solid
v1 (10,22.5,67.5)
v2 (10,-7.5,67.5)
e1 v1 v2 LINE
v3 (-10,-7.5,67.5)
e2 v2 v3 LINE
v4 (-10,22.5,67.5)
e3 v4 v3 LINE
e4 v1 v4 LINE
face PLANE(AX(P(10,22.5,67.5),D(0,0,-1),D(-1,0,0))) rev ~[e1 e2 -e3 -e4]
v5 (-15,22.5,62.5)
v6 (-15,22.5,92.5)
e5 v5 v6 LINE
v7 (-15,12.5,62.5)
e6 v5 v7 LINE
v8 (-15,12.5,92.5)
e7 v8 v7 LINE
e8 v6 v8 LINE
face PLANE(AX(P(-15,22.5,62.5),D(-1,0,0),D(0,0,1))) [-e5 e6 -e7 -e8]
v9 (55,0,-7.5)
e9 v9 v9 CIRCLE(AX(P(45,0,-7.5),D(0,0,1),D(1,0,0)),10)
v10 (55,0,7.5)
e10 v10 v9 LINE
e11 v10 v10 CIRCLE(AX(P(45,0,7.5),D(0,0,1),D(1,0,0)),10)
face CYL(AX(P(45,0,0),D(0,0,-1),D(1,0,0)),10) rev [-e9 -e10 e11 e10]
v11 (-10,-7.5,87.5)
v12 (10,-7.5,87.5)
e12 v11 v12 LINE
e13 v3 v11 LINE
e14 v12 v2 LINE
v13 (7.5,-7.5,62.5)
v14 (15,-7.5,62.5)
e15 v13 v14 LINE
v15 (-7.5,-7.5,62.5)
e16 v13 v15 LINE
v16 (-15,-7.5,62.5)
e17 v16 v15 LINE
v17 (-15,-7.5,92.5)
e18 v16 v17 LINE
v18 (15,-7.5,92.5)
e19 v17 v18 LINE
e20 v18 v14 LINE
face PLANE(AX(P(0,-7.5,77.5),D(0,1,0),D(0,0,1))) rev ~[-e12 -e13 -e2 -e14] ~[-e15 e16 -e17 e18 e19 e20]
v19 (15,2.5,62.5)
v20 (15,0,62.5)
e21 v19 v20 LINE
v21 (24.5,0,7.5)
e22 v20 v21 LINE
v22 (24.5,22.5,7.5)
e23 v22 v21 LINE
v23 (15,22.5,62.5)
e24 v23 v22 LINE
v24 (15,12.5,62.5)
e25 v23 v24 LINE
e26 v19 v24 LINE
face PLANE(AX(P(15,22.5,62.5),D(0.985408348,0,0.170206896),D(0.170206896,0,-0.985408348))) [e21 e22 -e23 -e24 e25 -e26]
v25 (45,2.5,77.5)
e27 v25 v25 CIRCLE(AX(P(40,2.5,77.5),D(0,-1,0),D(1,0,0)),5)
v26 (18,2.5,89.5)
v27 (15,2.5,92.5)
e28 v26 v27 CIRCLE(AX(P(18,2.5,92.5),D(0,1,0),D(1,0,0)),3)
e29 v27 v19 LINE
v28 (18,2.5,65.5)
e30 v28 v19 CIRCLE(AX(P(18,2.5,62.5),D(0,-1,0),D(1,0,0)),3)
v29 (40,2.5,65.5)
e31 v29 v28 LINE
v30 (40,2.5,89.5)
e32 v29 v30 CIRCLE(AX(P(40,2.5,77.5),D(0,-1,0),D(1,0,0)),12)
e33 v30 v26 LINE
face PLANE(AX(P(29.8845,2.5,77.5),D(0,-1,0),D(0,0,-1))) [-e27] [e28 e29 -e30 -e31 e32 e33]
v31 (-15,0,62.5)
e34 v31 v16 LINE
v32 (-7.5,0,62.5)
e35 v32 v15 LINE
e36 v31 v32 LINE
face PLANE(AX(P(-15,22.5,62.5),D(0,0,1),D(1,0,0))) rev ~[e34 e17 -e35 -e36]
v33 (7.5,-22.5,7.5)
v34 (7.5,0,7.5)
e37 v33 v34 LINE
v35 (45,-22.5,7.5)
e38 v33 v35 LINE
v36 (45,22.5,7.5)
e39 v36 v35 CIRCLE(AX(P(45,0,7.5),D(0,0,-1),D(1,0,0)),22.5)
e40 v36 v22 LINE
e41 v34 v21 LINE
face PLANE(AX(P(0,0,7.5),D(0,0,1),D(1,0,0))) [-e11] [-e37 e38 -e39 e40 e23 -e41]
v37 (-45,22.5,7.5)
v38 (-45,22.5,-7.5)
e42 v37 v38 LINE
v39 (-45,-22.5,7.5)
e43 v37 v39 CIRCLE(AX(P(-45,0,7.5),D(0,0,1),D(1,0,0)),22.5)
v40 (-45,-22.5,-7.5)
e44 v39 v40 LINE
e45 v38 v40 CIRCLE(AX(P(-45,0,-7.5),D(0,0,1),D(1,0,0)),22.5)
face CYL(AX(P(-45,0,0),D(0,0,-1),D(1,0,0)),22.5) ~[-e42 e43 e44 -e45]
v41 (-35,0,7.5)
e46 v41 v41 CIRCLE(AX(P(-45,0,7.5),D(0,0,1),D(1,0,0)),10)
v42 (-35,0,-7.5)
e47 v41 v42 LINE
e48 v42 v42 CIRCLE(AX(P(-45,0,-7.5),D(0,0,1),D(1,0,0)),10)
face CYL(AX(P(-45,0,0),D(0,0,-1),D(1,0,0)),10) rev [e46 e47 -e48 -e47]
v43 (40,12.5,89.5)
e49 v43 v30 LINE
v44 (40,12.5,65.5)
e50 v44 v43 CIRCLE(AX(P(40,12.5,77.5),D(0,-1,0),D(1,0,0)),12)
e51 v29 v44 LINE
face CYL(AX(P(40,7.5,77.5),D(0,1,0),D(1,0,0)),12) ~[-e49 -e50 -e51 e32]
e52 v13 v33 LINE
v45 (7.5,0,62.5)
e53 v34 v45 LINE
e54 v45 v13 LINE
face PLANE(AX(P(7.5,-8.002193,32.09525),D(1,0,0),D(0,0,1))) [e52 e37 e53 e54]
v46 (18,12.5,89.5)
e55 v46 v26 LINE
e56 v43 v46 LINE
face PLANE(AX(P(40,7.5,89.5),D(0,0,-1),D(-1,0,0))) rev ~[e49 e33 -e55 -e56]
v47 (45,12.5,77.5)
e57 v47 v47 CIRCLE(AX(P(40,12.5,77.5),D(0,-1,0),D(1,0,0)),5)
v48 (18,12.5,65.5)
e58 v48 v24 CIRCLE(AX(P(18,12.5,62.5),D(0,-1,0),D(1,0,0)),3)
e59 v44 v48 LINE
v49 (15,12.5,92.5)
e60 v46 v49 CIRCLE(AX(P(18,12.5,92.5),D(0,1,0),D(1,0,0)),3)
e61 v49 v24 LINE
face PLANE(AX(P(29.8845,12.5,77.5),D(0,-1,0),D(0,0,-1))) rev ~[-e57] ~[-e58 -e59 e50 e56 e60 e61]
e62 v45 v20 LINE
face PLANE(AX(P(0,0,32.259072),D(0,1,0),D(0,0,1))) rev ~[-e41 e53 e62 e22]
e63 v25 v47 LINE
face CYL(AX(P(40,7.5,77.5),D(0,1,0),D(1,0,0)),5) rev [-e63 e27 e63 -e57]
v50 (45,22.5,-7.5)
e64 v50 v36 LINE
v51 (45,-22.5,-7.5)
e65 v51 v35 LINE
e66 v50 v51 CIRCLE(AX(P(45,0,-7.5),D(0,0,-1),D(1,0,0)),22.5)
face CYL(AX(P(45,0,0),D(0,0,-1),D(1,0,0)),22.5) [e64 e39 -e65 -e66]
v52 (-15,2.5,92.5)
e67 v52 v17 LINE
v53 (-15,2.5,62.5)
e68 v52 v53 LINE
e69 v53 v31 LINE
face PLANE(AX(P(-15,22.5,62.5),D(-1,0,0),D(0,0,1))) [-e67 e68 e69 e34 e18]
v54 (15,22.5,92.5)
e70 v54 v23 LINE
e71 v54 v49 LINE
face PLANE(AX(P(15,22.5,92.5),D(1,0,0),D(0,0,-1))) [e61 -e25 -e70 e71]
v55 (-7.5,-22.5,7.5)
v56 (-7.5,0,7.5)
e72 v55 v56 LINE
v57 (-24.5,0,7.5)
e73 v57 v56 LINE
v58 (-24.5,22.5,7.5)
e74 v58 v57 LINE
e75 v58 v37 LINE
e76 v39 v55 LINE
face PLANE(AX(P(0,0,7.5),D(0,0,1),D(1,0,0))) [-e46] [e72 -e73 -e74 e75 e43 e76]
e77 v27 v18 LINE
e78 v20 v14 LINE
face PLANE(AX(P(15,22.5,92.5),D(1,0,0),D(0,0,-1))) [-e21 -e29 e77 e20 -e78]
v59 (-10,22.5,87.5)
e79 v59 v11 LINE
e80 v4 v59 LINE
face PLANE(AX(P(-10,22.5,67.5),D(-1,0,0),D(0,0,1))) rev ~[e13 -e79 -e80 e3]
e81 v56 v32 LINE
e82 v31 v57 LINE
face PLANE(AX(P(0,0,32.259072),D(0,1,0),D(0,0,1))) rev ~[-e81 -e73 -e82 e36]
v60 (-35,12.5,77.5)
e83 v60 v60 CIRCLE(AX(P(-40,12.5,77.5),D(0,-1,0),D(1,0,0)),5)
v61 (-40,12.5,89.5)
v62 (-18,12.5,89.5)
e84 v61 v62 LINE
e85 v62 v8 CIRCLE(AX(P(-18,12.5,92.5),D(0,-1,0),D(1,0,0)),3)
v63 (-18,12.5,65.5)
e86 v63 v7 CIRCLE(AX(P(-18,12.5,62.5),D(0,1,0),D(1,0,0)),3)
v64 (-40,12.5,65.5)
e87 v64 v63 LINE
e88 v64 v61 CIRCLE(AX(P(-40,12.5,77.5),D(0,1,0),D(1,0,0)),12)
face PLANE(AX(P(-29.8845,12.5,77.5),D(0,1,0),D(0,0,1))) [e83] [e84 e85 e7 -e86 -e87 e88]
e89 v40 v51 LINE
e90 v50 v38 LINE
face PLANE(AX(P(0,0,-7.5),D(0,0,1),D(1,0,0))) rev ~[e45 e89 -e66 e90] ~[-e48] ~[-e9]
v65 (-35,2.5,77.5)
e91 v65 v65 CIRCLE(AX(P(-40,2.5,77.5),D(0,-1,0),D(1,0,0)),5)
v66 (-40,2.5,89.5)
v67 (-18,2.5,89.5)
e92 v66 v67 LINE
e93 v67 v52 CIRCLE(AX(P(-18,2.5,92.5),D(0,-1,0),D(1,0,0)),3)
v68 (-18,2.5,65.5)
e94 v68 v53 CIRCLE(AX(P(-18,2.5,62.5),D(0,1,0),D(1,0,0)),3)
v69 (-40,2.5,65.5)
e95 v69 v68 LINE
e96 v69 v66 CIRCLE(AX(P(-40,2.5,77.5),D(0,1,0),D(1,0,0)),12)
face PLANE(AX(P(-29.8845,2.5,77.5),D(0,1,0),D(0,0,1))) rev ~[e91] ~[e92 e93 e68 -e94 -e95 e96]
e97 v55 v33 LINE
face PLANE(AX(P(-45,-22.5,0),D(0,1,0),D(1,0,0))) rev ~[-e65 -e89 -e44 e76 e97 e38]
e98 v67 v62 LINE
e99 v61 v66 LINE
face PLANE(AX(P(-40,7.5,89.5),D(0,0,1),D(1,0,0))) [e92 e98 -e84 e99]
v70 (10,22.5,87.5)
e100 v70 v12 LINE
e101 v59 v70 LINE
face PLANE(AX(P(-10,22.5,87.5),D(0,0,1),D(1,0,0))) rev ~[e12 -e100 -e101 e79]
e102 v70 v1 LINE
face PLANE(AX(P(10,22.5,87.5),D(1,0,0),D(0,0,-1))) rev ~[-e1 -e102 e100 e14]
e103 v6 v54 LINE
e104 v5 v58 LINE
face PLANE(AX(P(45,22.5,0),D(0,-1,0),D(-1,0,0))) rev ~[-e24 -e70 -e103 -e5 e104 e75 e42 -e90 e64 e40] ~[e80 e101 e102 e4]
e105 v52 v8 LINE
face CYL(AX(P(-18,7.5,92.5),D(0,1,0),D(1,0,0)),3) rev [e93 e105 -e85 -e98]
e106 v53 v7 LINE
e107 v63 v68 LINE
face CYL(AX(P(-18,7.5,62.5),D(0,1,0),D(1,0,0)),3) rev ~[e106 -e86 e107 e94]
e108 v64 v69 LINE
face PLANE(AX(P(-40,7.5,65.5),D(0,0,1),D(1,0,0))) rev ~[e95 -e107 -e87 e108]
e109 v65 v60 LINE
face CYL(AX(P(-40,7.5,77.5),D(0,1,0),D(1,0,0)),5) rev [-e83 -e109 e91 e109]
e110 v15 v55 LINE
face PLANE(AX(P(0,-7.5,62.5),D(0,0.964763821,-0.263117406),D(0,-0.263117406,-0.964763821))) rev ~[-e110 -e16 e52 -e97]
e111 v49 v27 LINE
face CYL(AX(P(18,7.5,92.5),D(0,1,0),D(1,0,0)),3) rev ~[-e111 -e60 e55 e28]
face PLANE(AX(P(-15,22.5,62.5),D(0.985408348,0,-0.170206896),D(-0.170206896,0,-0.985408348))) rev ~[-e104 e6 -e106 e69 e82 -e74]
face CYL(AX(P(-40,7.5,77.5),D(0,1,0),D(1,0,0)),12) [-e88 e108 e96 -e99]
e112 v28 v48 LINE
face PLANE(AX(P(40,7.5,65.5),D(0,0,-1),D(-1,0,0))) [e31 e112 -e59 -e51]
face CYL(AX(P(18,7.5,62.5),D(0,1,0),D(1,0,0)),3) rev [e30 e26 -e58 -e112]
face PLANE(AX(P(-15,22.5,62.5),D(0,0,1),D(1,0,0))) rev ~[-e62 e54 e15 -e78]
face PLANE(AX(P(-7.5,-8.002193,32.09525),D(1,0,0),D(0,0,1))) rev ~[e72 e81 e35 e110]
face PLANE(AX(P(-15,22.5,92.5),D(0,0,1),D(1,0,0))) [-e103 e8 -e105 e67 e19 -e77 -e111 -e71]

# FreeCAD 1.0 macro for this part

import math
import FreeCAD as App
import Part
import Sketcher
Q = App.Units.Quantity


def add_polygon(sketch, points):
    """Adds a closed chain of lines whose ends are joined by coincident constraints."""
    first, n = sketch.GeometryCount, len(points)
    for a, b in zip(points, points[1:] + points[:1]):
        sketch.addGeometry(Part.LineSegment(App.Vector(*a, 0), App.Vector(*b, 0)), False)
    for i in range(n):
        sketch.addConstraint(Sketcher.Constraint("Coincident", first + i, 2, first + (i + 1) % n, 1))

doc = App.newDocument("Part")
body = doc.addObject("PartDesign::Body", "Body")

# Sketch on XY plane
sketch1 = doc.addObject("Sketcher::SketchObject", "Sketch")
body.addObject(sketch1)
sketch1.AttachmentSupport = (doc.XY_Plane, [""])
sketch1.MapMode = "FlatFace"
sketch1.addGeometry([
    Part.ArcOfCircle(Part.Circle(App.Vector(-45, 0, 0), App.Vector(0, 0, 1), 22), math.radians(90), math.radians(270)),  # 0
    Part.LineSegment(App.Vector(-45, -22, 0), App.Vector(45, -22, 0)),  # 1
    Part.ArcOfCircle(Part.Circle(App.Vector(45, 0, 0), App.Vector(0, 0, 1), 22), math.radians(-90), math.radians(90)),  # 2
    Part.LineSegment(App.Vector(45, 22, 0), App.Vector(-45, 22, 0)),  # 3
    Part.Circle(App.Vector(-45, 0, 0), App.Vector(0, 0, 1), 10),  # 4
    Part.Circle(App.Vector(45, 0, 0), App.Vector(0, 0, 1), 10),  # 5
], False)
sketch1.addConstraint([
    Sketcher.Constraint("Tangent", 0, 2, 1, 1),
    Sketcher.Constraint("Tangent", 1, 2, 2, 1),
    Sketcher.Constraint("Tangent", 2, 2, 3, 1),
    Sketcher.Constraint("Tangent", 3, 2, 0, 1),
    Sketcher.Constraint("Horizontal", 1),
    Sketcher.Constraint("Horizontal", 3),
    Sketcher.Constraint("Coincident", 4, 3, 0, 3),
    Sketcher.Constraint("Coincident", 5, 3, 2, 3),
    Sketcher.Constraint("Equal", 4, 5),
    Sketcher.Constraint("Symmetric", 0, 3, 2, 3, -1, 1),
    Sketcher.Constraint("Diameter", 4, 20.0),
    Sketcher.Constraint("Radius", 0, 22.5),
    Sketcher.Constraint("DistanceX", 1, 1, 1, 2, 90.0),
])
pad1 = doc.addObject("PartDesign::Pad", "Pad")
body.addObject(pad1)
pad1.Profile = sketch1
pad1.Length = 15
pad1.Midplane = True

# Sketch on XZ plane
sketch2 = doc.addObject("Sketcher::SketchObject", "Sketch001")
body.addObject(sketch2)
sketch2.AttachmentSupport = (doc.XZ_Plane, [""])
sketch2.MapMode = "FlatFace"
sketch2.AttachmentOffset = App.Placement(App.Vector(0, 0, -22.5), App.Rotation())
add_polygon(sketch2, [(-15, 62), (15, 62), (24, 8), (-24, 8)])  # lines 0-3
sketch2.addConstraint([
    Sketcher.Constraint("Horizontal", 0),
    Sketcher.Constraint("Horizontal", 2),
    Sketcher.Constraint("Equal", 1, 3),
    Sketcher.Constraint("DistanceX", 0, 1, 0, 2, 30.0),
    Sketcher.Constraint("DistanceX", 2, 2, 2, 1, 49.0),
    Sketcher.Constraint("DistanceX", -1, 1, 0, 2, 15.0),
    Sketcher.Constraint("Angle", 1, Q("-80.2002 deg")),
    Sketcher.Constraint("DistanceY", -1, 1, 0, 2, 62.5),
])
pad2 = doc.addObject("PartDesign::Pad", "Pad001")
body.addObject(pad2)
pad2.Profile = sketch2
pad2.Length = 22.5

# Sketch on XZ plane
sketch3 = doc.addObject("Sketcher::SketchObject", "Sketch002")
body.addObject(sketch3)
sketch3.AttachmentSupport = (doc.XZ_Plane, [""])
sketch3.MapMode = "FlatFace"
sketch3.AttachmentOffset = App.Placement(App.Vector(0, 0, -22.5), App.Rotation())
add_polygon(sketch3, [(-15, 92), (15, 92), (15, 62), (-15, 62)])  # lines 0-3
add_polygon(sketch3, [(10, 68), (10, 88), (-10, 88), (-10, 68)])  # lines 4-7
sketch3.addConstraint([
    Sketcher.Constraint("Horizontal", 0),
    Sketcher.Constraint("Vertical", 1),
    Sketcher.Constraint("Horizontal", 2),
    Sketcher.Constraint("Vertical", 3),
    Sketcher.Constraint("Vertical", 4),
    Sketcher.Constraint("Horizontal", 5),
    Sketcher.Constraint("Vertical", 6),
    Sketcher.Constraint("Horizontal", 7),
    Sketcher.Constraint("Equal", 2, 1),
    Sketcher.Constraint("Equal", 7, 4),
    Sketcher.Constraint("DistanceX", 0, 1, 0, 2, 30.0),
    Sketcher.Constraint("DistanceX", 5, 2, 5, 1, 20.0),
    Sketcher.Constraint("DistanceX", -1, 1, 0, 2, 15.0),
    Sketcher.Constraint("DistanceX", -1, 1, 4, 2, 10.0),
    Sketcher.Constraint("DistanceY", 4, 2, 0, 2, 5.0),
    Sketcher.Constraint("DistanceY", -1, 1, 0, 2, 92.5),
])
pad3 = doc.addObject("PartDesign::Pad", "Pad002")
body.addObject(pad3)
pad3.Profile = sketch3
pad3.Length = 30

# Sketch on YZ plane
sketch4 = doc.addObject("Sketcher::SketchObject", "Sketch003")
body.addObject(sketch4)
sketch4.AttachmentSupport = (doc.YZ_Plane, [""])
sketch4.MapMode = "FlatFace"
add_polygon(sketch4, [(0, 62), (-8, 62), (-22, 8), (0, 8)])  # lines 0-3
sketch4.addConstraint([
    Sketcher.Constraint("Horizontal", 0),
    Sketcher.Constraint("Horizontal", 2),
    Sketcher.Constraint("Vertical", 3),
    Sketcher.Constraint("PointOnObject", 2, 2, -2),
    Sketcher.Constraint("DistanceY", 3, 1, 3, 2, 55.0),
    Sketcher.Constraint("DistanceX", 0, 2, 0, 1, 7.5),
    Sketcher.Constraint("DistanceX", 2, 1, 2, 2, 22.5),
    Sketcher.Constraint("DistanceY", -1, 1, 0, 2, 62.5),
])
pad4 = doc.addObject("PartDesign::Pad", "Pad003")
body.addObject(pad4)
pad4.Profile = sketch4
pad4.Length = 15
pad4.Midplane = True

# Sketch on XZ plane
sketch5 = doc.addObject("Sketcher::SketchObject", "Sketch004")
body.addObject(sketch5)
sketch5.AttachmentSupport = (doc.XZ_Plane, [""])
sketch5.MapMode = "FlatFace"
sketch5.AttachmentOffset = App.Placement(App.Vector(0, 0, -7.5), App.Rotation())
sketch5.addGeometry([
    Part.LineSegment(App.Vector(18, 65.5, 0), App.Vector(40, 65.5, 0)),  # 0
    Part.ArcOfCircle(Part.Circle(App.Vector(40, 77.5, 0), App.Vector(0, 0, 1), 12), math.radians(-90), math.radians(90)),  # 1
    Part.LineSegment(App.Vector(40, 89.5, 0), App.Vector(18, 89.5, 0)),  # 2
    Part.ArcOfCircle(Part.Circle(App.Vector(18, 92.5, 0), App.Vector(0, 0, 1), 3), math.radians(180), math.radians(270)),  # 3
    Part.LineSegment(App.Vector(15, 92.5, 0), App.Vector(15, 62.5, 0)),  # 4
    Part.ArcOfCircle(Part.Circle(App.Vector(18, 62.5, 0), App.Vector(0, 0, 1), 3), math.radians(90), math.radians(180)),  # 5
    Part.Circle(App.Vector(40, 77.5, 0), App.Vector(0, 0, 1), 5),  # 6
    Part.LineSegment(App.Vector(-18, 89.5, 0), App.Vector(-40, 89.5, 0)),  # 7
    Part.ArcOfCircle(Part.Circle(App.Vector(-40, 77.5, 0), App.Vector(0, 0, 1), 12), math.radians(90), math.radians(270)),  # 8
    Part.LineSegment(App.Vector(-40, 65.5, 0), App.Vector(-18, 65.5, 0)),  # 9
    Part.ArcOfCircle(Part.Circle(App.Vector(-18, 62.5, 0), App.Vector(0, 0, 1), 3), math.radians(0), math.radians(90)),  # 10
    Part.LineSegment(App.Vector(-15, 62.5, 0), App.Vector(-15, 92.5, 0)),  # 11
    Part.ArcOfCircle(Part.Circle(App.Vector(-18, 92.5, 0), App.Vector(0, 0, 1), 3), math.radians(-90), math.radians(0)),  # 12
    Part.Circle(App.Vector(-40, 77.5, 0), App.Vector(0, 0, 1), 5),  # 13
], False)
sketch5.addConstraint([
    Sketcher.Constraint("Tangent", 0, 2, 1, 1),
    Sketcher.Constraint("Tangent", 1, 2, 2, 1),
    Sketcher.Constraint("Tangent", 2, 2, 3, 2),
    Sketcher.Constraint("Tangent", 3, 1, 4, 1),
    Sketcher.Constraint("Tangent", 4, 2, 5, 2),
    Sketcher.Constraint("Tangent", 5, 1, 0, 1),
    Sketcher.Constraint("Tangent", 7, 2, 8, 1),
    Sketcher.Constraint("Tangent", 8, 2, 9, 1),
    Sketcher.Constraint("Tangent", 9, 2, 10, 2),
    Sketcher.Constraint("Tangent", 10, 1, 11, 1),
    Sketcher.Constraint("Tangent", 11, 2, 12, 2),
    Sketcher.Constraint("Tangent", 12, 1, 7, 1),
    Sketcher.Constraint("Horizontal", 0),
    Sketcher.Constraint("Horizontal", 2),
    Sketcher.Constraint("Vertical", 4),
    Sketcher.Constraint("Horizontal", 7),
    Sketcher.Constraint("Horizontal", 9),
    Sketcher.Constraint("Vertical", 11),
    Sketcher.Constraint("Coincident", 6, 3, 1, 3),
    Sketcher.Constraint("Coincident", 13, 3, 8, 3),
    Sketcher.Constraint("Equal", 3, 5),
    Sketcher.Constraint("Equal", 1, 8),
    Sketcher.Constraint("Equal", 5, 10),
    Sketcher.Constraint("Equal", 10, 12),
    Sketcher.Constraint("Equal", 6, 13),
    Sketcher.Constraint("Symmetric", 1, 3, 8, 3, -2),
    Sketcher.Constraint("Equal", 2, 7),
    Sketcher.Constraint("Diameter", 6, 10.0),
    Sketcher.Constraint("Radius", 1, 12.0),
    Sketcher.Constraint("Radius", 3, 3.0),
    Sketcher.Constraint("DistanceX", 0, 1, 0, 2, 22.0),
    Sketcher.Constraint("DistanceX", -1, 1, 1, 3, 40.0),
    Sketcher.Constraint("DistanceY", -1, 1, 1, 3, 77.5),
])
pad5 = doc.addObject("PartDesign::Pad", "Pad004")
body.addObject(pad5)
pad5.Profile = sketch5
pad5.Length = 10
pad5.Midplane = True

doc.recompute()
